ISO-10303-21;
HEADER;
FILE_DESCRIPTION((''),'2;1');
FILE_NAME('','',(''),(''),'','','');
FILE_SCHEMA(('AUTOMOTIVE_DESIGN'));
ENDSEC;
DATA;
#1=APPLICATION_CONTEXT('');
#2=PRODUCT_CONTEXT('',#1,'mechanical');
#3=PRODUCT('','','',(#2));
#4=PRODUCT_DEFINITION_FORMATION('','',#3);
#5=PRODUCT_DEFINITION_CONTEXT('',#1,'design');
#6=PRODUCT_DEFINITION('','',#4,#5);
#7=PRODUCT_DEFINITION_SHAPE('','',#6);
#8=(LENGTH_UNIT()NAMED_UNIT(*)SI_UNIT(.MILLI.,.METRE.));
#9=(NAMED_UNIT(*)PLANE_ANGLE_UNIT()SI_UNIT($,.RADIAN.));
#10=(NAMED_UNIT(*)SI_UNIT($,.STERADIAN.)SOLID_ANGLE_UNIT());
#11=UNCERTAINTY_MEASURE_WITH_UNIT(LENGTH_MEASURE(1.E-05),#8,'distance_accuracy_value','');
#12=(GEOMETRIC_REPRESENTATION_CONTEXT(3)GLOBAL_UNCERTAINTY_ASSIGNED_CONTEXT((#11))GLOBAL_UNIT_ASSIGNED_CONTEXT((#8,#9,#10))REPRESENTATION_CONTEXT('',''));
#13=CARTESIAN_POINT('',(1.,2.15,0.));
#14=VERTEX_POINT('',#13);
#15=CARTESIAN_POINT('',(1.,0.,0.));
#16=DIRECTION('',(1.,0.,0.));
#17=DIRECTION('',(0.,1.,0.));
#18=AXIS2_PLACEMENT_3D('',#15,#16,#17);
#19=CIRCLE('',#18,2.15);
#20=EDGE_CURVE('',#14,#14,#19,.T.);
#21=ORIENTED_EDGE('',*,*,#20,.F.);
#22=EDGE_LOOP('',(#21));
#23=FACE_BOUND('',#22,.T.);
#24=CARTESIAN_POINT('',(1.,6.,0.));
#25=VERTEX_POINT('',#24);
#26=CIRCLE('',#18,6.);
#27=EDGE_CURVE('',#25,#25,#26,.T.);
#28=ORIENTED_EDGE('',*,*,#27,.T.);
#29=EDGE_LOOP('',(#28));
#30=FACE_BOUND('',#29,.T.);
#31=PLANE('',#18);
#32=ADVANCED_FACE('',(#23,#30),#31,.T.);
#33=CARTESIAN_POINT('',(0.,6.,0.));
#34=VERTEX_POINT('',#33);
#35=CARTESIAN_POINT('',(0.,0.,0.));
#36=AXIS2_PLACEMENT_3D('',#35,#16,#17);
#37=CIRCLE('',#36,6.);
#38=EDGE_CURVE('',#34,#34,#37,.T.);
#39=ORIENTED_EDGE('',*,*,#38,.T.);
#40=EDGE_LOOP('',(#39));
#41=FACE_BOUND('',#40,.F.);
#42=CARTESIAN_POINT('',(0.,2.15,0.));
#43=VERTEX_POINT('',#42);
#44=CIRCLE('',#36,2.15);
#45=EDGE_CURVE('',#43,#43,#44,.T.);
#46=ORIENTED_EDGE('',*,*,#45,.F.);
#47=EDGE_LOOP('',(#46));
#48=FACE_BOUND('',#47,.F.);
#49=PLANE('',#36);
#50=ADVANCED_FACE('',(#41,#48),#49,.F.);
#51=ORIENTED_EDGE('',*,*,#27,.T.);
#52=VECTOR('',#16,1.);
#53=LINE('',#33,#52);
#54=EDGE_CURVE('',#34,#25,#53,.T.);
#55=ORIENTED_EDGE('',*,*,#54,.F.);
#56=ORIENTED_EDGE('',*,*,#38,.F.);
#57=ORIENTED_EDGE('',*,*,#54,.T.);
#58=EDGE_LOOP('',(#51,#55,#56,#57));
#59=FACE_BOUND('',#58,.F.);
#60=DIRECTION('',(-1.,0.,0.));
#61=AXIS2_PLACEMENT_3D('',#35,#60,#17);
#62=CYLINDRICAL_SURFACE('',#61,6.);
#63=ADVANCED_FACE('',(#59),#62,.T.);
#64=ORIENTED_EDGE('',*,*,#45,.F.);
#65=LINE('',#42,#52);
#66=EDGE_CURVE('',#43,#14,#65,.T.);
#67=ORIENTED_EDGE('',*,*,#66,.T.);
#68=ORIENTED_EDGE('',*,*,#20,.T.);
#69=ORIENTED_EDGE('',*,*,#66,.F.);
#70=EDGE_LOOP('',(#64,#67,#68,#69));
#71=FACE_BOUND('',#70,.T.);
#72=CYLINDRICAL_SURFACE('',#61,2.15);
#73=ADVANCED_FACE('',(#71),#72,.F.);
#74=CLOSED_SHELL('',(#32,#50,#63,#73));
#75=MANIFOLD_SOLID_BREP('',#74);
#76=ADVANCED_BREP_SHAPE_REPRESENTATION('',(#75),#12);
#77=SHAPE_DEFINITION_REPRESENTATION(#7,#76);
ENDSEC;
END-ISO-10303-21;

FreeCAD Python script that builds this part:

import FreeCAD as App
import Part
import Sketcher

V = App.Vector

doc = App.newDocument("Part")
params = doc.addObject("Spreadsheet::Sheet", "Params")
for row, (alias, value) in enumerate([
    ("sketch1_diameter", "12 mm"),
    ("sketch1_diameter2", "4.3 mm"),
    ("pad1_length", "1 mm"),
], start=1):
    params.set(f"A{row}", alias)
    params.set(f"B{row}", "=" + value)
    params.setAlias(f"B{row}", alias)

body = doc.addObject("PartDesign::Body", "Body")

sketch1 = body.newObject("Sketcher::SketchObject", "Sketch")
sketch1.AttachmentSupport = (doc.getObject("YZ_Plane"), [""])
sketch1.MapMode = "FlatFace"
sketch1.addGeometry([
    Part.Circle(V(0, 0, 0), V(0, 0, 1), 6),
    Part.Circle(V(0, 0, 0), V(0, 0, 1), 2.1),
], False)
sketch1.addConstraint([
    Sketcher.Constraint("Coincident", 0, 3, -1, 1),
    Sketcher.Constraint("Coincident", 1, 3, -1, 1),
    Sketcher.Constraint("Diameter", 0, 12.0),
    Sketcher.Constraint("Diameter", 1, 4.3),
])
sketch1.setExpression("Constraints[2]", "Params.sketch1_diameter")
sketch1.setExpression("Constraints[3]", "Params.sketch1_diameter2")
pad1 = body.newObject("PartDesign::Pad", "Pad")
pad1.Profile = sketch1
pad1.setExpression("Length", "Params.pad1_length")

doc.recompute()
